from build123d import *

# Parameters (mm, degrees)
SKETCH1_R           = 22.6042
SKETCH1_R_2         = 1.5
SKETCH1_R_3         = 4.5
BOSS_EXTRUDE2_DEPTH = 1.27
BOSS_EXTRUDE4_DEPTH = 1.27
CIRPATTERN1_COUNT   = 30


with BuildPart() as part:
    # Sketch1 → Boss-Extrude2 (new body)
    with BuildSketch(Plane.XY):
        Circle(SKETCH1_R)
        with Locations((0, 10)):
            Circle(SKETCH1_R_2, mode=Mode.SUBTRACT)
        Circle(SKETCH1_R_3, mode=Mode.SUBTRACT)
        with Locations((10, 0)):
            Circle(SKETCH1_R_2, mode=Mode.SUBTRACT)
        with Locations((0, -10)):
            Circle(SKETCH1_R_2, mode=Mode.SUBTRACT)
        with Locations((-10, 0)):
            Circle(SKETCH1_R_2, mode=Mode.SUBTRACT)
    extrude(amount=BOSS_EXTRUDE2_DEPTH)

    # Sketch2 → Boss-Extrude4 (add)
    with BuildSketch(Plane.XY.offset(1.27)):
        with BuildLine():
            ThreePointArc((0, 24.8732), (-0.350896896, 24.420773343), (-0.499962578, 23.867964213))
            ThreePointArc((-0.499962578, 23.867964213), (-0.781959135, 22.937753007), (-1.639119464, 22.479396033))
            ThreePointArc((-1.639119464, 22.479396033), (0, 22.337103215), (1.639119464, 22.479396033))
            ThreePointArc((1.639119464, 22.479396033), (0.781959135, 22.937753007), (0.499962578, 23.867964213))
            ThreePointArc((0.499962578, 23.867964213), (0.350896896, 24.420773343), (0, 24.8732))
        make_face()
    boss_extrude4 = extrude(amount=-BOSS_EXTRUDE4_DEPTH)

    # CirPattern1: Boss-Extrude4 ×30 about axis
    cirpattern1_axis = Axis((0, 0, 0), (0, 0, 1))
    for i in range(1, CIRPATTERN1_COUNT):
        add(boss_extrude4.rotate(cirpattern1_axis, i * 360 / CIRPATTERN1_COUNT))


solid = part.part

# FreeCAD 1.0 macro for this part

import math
import FreeCAD as App
import Part
import Sketcher

doc = App.newDocument("Part")
body = doc.addObject("PartDesign::Body", "Body")

# Sketch on XY plane
sketch1 = body.newObject("Sketcher::SketchObject", "Sketch")
sketch1.AttachmentSupport = (doc.getObject("XY_Plane"), [""])
sketch1.MapMode = "FlatFace"
sketch1.addGeometry(Part.Circle(App.Vector(0, 0, 0), App.Vector(0, 0, 1), 22.6), False)
sketch1.addGeometry(Part.Circle(App.Vector(0, -10, 0), App.Vector(0, 0, 1), 1.5), False)
sketch1.addGeometry(Part.Circle(App.Vector(-10, 0, 0), App.Vector(0, 0, 1), 1.5), False)
sketch1.addGeometry(Part.Circle(App.Vector(0, 0, 0), App.Vector(0, 0, 1), 4.5), False)
sketch1.addGeometry(Part.Circle(App.Vector(10, 0, 0), App.Vector(0, 0, 1), 1.5), False)
sketch1.addGeometry(Part.Circle(App.Vector(0, 10, 0), App.Vector(0, 0, 1), 1.5), False)
sketch1.addConstraint(Sketcher.Constraint("Coincident", 0, 3, -1, 1))
sketch1.addConstraint(Sketcher.Constraint("Coincident", 3, 3, -1, 1))
sketch1.addConstraint(Sketcher.Constraint("Equal", 1, 2))
sketch1.addConstraint(Sketcher.Constraint("Equal", 2, 4))
sketch1.addConstraint(Sketcher.Constraint("Equal", 4, 5))
sketch1.addConstraint(Sketcher.Constraint("Symmetric", 2, 3, 4, 3, -1, 1))
sketch1.addConstraint(Sketcher.Constraint("Symmetric", 1, 3, 5, 3, -1, 1))
sketch1.addConstraint(Sketcher.Constraint("PointOnObject", 1, 3, -2))
sketch1.addConstraint(Sketcher.Constraint("PointOnObject", 2, 3, -1))
sketch1.addConstraint(Sketcher.Constraint("Diameter", 1, 3.0))
sketch1.addConstraint(Sketcher.Constraint("Diameter", 3, 9.0))
sketch1.addConstraint(Sketcher.Constraint("DistanceY", 1, 3, -1, 1, 10.0))
sketch1.addConstraint(Sketcher.Constraint("DistanceX", 2, 3, -1, 1, 10.0))
sketch1.addConstraint(Sketcher.Constraint("Diameter", 0, 45.2084))
pad1 = body.newObject("PartDesign::Pad", "Pad")
pad1.Profile = sketch1
pad1.Length = 1.27

# Sketch on XY plane
sketch2 = body.newObject("Sketcher::SketchObject", "Sketch001")
sketch2.AttachmentSupport = (doc.getObject("XY_Plane"), [""])
sketch2.MapMode = "FlatFace"
sketch2.AttachmentOffset = App.Placement(App.Vector(0, 0, 1.27), App.Rotation())
sketch2.addGeometry(Part.ArcOfCircle(Part.Circle(App.Vector(1, 23.8, 0), App.Vector(0, 0, 1), 1.5), math.radians(131), math.radians(176)), False)
sketch2.addGeometry(Part.ArcOfCircle(Part.Circle(App.Vector(-1.8, 23.7, 0), App.Vector(0, 0, 1), 1.3), math.radians(-84), math.radians(6)), False)
sketch2.addGeometry(Part.ArcOfCircle(Part.Circle(App.Vector(0, 31.8, 0), App.Vector(0, 0, 1), 9.5), math.radians(-99.92), math.radians(-80.08)), False)
sketch2.addGeometry(Part.ArcOfCircle(Part.Circle(App.Vector(1.8, 23.7, 0), App.Vector(0, 0, 1), 1.3), math.radians(174), math.radians(264)), False)
sketch2.addGeometry(Part.ArcOfCircle(Part.Circle(App.Vector(-1, 23.8, 0), App.Vector(0, 0, 1), 1.5), math.radians(4), math.radians(49)), False)
sketch2.addConstraint(Sketcher.Constraint("Coincident", 0, 2, 1, 2))
sketch2.addConstraint(Sketcher.Constraint("Coincident", 1, 1, 2, 1))
sketch2.addConstraint(Sketcher.Constraint("Coincident", 2, 2, 3, 2))
sketch2.addConstraint(Sketcher.Constraint("Coincident", 3, 1, 4, 1))
sketch2.addConstraint(Sketcher.Constraint("Coincident", 4, 2, 0, 1))
sketch2.addConstraint(Sketcher.Constraint("Equal", 1, 3))
sketch2.addConstraint(Sketcher.Constraint("Equal", 0, 4))
sketch2.addConstraint(Sketcher.Constraint("Symmetric", 1, 3, 3, 3, -2))
sketch2.addConstraint(Sketcher.Constraint("Symmetric", 0, 3, 4, 3, -2))
sketch2.addConstraint(Sketcher.Constraint("PointOnObject", 2, 3, -2))
sketch2.addConstraint(Sketcher.Constraint("Radius", 1, 1.27))
sketch2.addConstraint(Sketcher.Constraint("Radius", 0, 1.454281))
sketch2.addConstraint(Sketcher.Constraint("Radius", 2, 9.511934))
sketch2.addConstraint(Sketcher.Constraint("DistanceY", -1, 1, 4, 2, 24.8732))
sketch2.addConstraint(Sketcher.Constraint("DistanceX", 0, 3, 3, 3, 0.812601))
sketch2.addConstraint(Sketcher.Constraint("DistanceY", -1, 1, 1, 3, 23.743259))
sketch2.addConstraint(Sketcher.Constraint("DistanceX", 1, 1, -1, 1, 1.639119))
sketch2.addConstraint(Sketcher.Constraint("DistanceX", 1, 3, 0, 3, 2.715049))
pad2 = body.newObject("PartDesign::Pad", "Pad001")
pad2.Profile = sketch2
pad2.Length = 1.27
pad2.Reversed = True
doc.recompute()

polarpattern = body.newObject("PartDesign::PolarPattern", "PolarPattern")
polarpattern.Originals = [pad2]
polarpattern.Axis = (doc.getObject("Z_Axis"), [""])
polarpattern.Angle = 360
polarpattern.Occurrences = 30
body.Tip = polarpattern

doc.recompute()
